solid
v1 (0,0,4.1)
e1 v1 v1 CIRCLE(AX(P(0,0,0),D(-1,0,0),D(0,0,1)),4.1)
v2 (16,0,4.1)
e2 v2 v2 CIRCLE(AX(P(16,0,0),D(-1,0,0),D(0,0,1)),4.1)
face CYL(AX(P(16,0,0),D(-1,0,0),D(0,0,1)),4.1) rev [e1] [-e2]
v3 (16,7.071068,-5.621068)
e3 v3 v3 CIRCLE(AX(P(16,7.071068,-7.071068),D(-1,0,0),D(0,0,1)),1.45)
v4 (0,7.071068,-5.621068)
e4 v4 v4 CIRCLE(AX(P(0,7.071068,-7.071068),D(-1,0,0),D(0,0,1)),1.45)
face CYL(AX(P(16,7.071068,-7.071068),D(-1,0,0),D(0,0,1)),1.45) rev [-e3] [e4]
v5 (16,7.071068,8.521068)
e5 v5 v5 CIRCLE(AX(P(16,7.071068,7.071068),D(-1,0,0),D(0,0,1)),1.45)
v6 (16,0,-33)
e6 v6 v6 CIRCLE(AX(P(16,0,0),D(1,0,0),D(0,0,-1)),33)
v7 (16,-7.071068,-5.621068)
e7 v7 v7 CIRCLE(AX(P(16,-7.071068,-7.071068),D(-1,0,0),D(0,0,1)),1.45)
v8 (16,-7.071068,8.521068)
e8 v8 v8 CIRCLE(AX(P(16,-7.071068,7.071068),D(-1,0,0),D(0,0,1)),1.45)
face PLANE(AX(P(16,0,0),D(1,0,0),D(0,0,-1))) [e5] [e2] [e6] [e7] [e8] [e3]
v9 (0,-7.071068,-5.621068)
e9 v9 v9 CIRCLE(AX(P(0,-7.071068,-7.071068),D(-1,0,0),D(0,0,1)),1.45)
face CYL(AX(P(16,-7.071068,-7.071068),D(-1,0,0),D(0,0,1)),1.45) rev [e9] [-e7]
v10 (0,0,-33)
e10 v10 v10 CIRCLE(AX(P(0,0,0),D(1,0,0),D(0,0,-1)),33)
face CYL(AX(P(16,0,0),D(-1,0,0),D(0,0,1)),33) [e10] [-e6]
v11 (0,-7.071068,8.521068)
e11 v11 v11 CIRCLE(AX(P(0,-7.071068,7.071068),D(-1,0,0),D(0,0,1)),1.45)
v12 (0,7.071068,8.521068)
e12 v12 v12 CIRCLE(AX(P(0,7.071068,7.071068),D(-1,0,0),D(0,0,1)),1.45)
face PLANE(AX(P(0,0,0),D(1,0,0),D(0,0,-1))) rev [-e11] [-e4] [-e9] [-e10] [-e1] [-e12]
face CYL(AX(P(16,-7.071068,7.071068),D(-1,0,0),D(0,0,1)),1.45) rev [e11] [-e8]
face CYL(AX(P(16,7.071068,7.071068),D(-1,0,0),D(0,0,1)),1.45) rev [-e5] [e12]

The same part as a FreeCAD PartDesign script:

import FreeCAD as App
import Part
import Sketcher

V = App.Vector
Q = App.Units.Quantity

doc = App.newDocument("Part")
body = doc.addObject("PartDesign::Body", "Body")

sketch1 = doc.addObject("Sketcher::SketchObject", "Sketch")
body.addObject(sketch1)
sketch1.AttachmentSupport = (doc.YZ_Plane, [""])
sketch1.MapMode = "FlatFace"
sketch1.addGeometry(Part.Circle(V(0, 0, 0), V(0, 0, 1), 33), False)
sketch1.addConstraint(Sketcher.Constraint("Coincident", 0, 3, -1, 1))
sketch1.addConstraint(Sketcher.Constraint("Diameter", 0, Q("66 mm")))
pad1 = doc.addObject("PartDesign::Pad", "Pad")
body.addObject(pad1)
pad1.Profile = sketch1
pad1.Length = 16

sketch2 = doc.addObject("Sketcher::SketchObject", "Sketch001")
body.addObject(sketch2)
sketch2.AttachmentSupport = (doc.YZ_Plane, [""])
sketch2.MapMode = "FlatFace"
sketch2.addGeometry(Part.Circle(V(0, 0, 0), V(0, 0, 1), 4.1), False)
sketch2.addGeometry(Part.Circle(V(7.1, -7.1, 0), V(0, 0, 1), 1.4), False)
sketch2.addGeometry(Part.Circle(V(-7.1, -7.1, 0), V(0, 0, 1), 1.4), False)
sketch2.addGeometry(Part.Circle(V(-7.1, 7.1, 0), V(0, 0, 1), 1.4), False)
sketch2.addGeometry(Part.Circle(V(7.1, 7.1, 0), V(0, 0, 1), 1.4), False)
sketch2.addConstraint(Sketcher.Constraint("Coincident", 0, 3, -1, 1))
sketch2.addConstraint(Sketcher.Constraint("Equal", 1, 2))
sketch2.addConstraint(Sketcher.Constraint("Equal", 2, 3))
sketch2.addConstraint(Sketcher.Constraint("Equal", 3, 4))
sketch2.addConstraint(Sketcher.Constraint("Symmetric", 1, 3, 3, 3, -1, 1))
sketch2.addConstraint(Sketcher.Constraint("Symmetric", 2, 3, 4, 3, -1, 1))
sketch2.addConstraint(Sketcher.Constraint("Symmetric", 1, 3, 2, 3, -2))
sketch2.addConstraint(Sketcher.Constraint("Diameter", 0, Q("8.2 mm")))
sketch2.addConstraint(Sketcher.Constraint("Diameter", 1, Q("2.9 mm")))
sketch2.addConstraint(Sketcher.Constraint("DistanceX", -1, 1, 1, 3, Q("7.071068 mm")))
sketch2.addConstraint(Sketcher.Constraint("DistanceY", 1, 3, -1, 1, Q("7.071068 mm")))
pocket1 = doc.addObject("PartDesign::Pocket", "Pocket")
body.addObject(pocket1)
pocket1.Profile = sketch2
pocket1.Length = 16
pocket1.Reversed = True

doc.recompute()
